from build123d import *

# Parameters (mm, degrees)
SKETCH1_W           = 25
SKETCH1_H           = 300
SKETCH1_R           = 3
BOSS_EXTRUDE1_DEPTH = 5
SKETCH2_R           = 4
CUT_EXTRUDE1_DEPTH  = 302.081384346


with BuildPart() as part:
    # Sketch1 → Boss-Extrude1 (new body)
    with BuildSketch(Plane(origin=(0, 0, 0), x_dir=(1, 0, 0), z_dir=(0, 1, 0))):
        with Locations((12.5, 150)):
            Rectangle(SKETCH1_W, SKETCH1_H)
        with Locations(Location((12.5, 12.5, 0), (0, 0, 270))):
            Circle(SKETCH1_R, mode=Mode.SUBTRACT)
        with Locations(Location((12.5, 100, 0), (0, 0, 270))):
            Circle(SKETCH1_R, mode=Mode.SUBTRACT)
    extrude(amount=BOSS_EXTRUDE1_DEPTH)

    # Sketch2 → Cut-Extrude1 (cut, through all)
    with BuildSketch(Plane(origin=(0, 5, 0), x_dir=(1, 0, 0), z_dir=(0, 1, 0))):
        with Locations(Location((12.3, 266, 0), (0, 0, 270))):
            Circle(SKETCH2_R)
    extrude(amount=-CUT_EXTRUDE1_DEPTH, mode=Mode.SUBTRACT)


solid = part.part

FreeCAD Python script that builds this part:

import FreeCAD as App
import Part
import Sketcher
Q = App.Units.Quantity

doc = App.newDocument("Part")
params = doc.addObject("Spreadsheet::Sheet", "Params")
for row, (alias, value) in enumerate([
    ("sketch1_diameter", "6 mm"),
    ("sketch1_width", "25 mm"),
    ("sketch1_height", "300 mm"),
    ("pad1_length", "5 mm"),
    ("sketch2_diameter", "8 mm"),
], start=1):
    params.set(f"A{row}", alias)
    params.set(f"B{row}", "=" + value)
    params.setAlias(f"B{row}", alias)

body = doc.addObject("PartDesign::Body", "Body")

sketch1 = body.newObject("Sketcher::SketchObject", "Sketch")
sketch1.AttachmentSupport = (doc.getObject("XZ_Plane"), [""])
sketch1.MapMode = "FlatFace"
sketch1.addGeometry([
    Part.LineSegment(App.Vector(0, -300, 0), App.Vector(0, 0, 0)),
    Part.LineSegment(App.Vector(0, 0, 0), App.Vector(25, 0, 0)),
    Part.LineSegment(App.Vector(25, 0, 0), App.Vector(25, -300, 0)),
    Part.LineSegment(App.Vector(25, -300, 0), App.Vector(0, -300, 0)),
    Part.Circle(App.Vector(12.5, -12.5, 0), App.Vector(0, 0, 1), 3),
    Part.Circle(App.Vector(12.5, -100, 0), App.Vector(0, 0, 1), 3),
], False)
sketch1.addConstraint([
    Sketcher.Constraint("Coincident", 0, 2, 1, 1),
    Sketcher.Constraint("Coincident", 1, 2, 2, 1),
    Sketcher.Constraint("Coincident", 2, 2, 3, 1),
    Sketcher.Constraint("Coincident", 3, 2, 0, 1),
    Sketcher.Constraint("Vertical", 0),
    Sketcher.Constraint("Horizontal", 1),
    Sketcher.Constraint("Vertical", 2),
    Sketcher.Constraint("Horizontal", 3),
    Sketcher.Constraint("Coincident", 0, 2, -1, 1),
    Sketcher.Constraint("Equal", 4, 5),
    Sketcher.Constraint("Vertical", 4, 3, 5, 3),
    Sketcher.Constraint("Diameter", 4, Q("6 mm")),
    Sketcher.Constraint("DistanceX", 1, 1, 1, 2, Q("25 mm")),
    Sketcher.Constraint("DistanceY", 0, 1, 0, 2, Q("300 mm")),
    Sketcher.Constraint("DistanceY", 5, 3, -1, 1, Q("100 mm")),
    Sketcher.Constraint("DistanceX", -1, 1, 4, 3, Q("12.5 mm")),
    Sketcher.Constraint("DistanceY", 4, 3, -1, 1, Q("12.5 mm")),
])
sketch1.setExpression("Constraints[11]", "Params.sketch1_diameter")
sketch1.setExpression("Constraints[12]", "Params.sketch1_width")
sketch1.setExpression("Constraints[13]", "Params.sketch1_height")
pad1 = body.newObject("PartDesign::Pad", "Pad")
pad1.Profile = sketch1
pad1.setExpression("Length", "Params.pad1_length")
pad1.Reversed = True

sketch2 = body.newObject("Sketcher::SketchObject", "Sketch001")
sketch2.AttachmentSupport = (doc.getObject("XZ_Plane"), [""])
sketch2.MapMode = "FlatFace"
sketch2.AttachmentOffset = App.Placement(App.Vector(0, 0, -5), App.Rotation())
sketch2.addGeometry(Part.Circle(App.Vector(12.3, -266, 0), App.Vector(0, 0, 1), 4), False)
sketch2.addConstraint([
    Sketcher.Constraint("Diameter", 0, Q("8 mm")),
    Sketcher.Constraint("DistanceY", 0, 3, -1, 1, Q("266 mm")),
    Sketcher.Constraint("DistanceX", -1, 1, 0, 3, Q("12.3 mm")),
])
sketch2.setExpression("Constraints[0]", "Params.sketch2_diameter")
pocket1 = body.newObject("PartDesign::Pocket", "Pocket")
pocket1.Profile = sketch2
pocket1.Type = "ThroughAll"
pocket1.Reversed = True

doc.recompute()
